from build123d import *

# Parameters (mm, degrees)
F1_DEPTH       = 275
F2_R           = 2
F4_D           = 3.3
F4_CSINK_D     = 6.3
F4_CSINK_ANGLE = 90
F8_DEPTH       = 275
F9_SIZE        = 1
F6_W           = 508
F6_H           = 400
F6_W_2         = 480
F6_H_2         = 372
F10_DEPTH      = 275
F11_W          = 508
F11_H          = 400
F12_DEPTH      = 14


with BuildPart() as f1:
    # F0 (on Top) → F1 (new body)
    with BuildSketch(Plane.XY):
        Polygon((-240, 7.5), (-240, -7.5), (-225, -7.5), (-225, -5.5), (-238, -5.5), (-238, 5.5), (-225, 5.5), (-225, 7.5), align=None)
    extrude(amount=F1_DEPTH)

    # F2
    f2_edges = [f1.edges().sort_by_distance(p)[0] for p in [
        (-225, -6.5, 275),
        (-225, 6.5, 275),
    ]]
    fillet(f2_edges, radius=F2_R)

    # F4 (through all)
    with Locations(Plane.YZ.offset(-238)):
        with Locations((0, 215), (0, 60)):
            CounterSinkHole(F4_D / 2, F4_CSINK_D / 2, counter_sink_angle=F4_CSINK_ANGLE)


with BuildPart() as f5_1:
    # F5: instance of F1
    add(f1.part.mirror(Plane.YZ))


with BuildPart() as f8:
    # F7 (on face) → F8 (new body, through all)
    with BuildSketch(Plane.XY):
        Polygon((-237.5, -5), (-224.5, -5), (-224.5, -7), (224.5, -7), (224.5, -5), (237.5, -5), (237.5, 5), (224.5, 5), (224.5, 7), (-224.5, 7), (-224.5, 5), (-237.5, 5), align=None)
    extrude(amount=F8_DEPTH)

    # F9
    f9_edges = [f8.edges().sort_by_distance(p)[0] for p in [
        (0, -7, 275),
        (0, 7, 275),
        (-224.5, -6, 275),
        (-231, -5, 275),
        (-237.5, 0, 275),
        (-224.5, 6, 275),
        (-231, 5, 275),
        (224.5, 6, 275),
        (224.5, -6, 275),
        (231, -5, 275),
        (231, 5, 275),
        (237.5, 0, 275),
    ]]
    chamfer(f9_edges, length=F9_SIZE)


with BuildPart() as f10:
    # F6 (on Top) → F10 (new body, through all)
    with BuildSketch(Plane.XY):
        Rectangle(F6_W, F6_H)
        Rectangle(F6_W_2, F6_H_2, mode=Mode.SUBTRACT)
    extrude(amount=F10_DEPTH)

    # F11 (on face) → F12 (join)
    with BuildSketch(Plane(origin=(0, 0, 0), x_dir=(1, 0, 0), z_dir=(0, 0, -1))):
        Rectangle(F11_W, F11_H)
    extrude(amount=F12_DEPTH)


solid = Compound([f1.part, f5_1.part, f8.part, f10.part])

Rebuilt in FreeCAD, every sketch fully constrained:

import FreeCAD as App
import Part
import Sketcher

V = App.Vector
Q = App.Units.Quantity


def edges_at(feature, points):
    """Names of the edges that pass closest to the given points."""
    edges = feature.Shape.Edges
    near = lambda p: min(range(len(edges)), key=lambda i: edges[i].distToShape(Part.Vertex(*p))[0])
    return sorted({f"Edge{near(p) + 1}" for p in points})

doc = App.newDocument("Part")
body = doc.addObject("PartDesign::Body", "Body")

sketch1 = doc.addObject("Sketcher::SketchObject", "Sketch")
body.addObject(sketch1)
sketch1.AttachmentSupport = (doc.XY_Plane, [""])
sketch1.MapMode = "FlatFace"
sketch1.addGeometry(Part.LineSegment(V(-240, 7.5, 0), V(-240, -7.5, 0)), False)
sketch1.addGeometry(Part.LineSegment(V(-240, -7.5, 0), V(-225, -7.5, 0)), False)
sketch1.addGeometry(Part.LineSegment(V(-225, -7.5, 0), V(-225, -5.5, 0)), False)
sketch1.addGeometry(Part.LineSegment(V(-225, -5.5, 0), V(-238, -5.5, 0)), False)
sketch1.addGeometry(Part.LineSegment(V(-238, -5.5, 0), V(-238, 5.5, 0)), False)
sketch1.addGeometry(Part.LineSegment(V(-238, 5.5, 0), V(-225, 5.5, 0)), False)
sketch1.addGeometry(Part.LineSegment(V(-225, 5.5, 0), V(-225, 7.5, 0)), False)
sketch1.addGeometry(Part.LineSegment(V(-225, 7.5, 0), V(-240, 7.5, 0)), False)
sketch1.addConstraint(Sketcher.Constraint("Coincident", 0, 2, 1, 1))
sketch1.addConstraint(Sketcher.Constraint("Coincident", 1, 2, 2, 1))
sketch1.addConstraint(Sketcher.Constraint("Coincident", 2, 2, 3, 1))
sketch1.addConstraint(Sketcher.Constraint("Coincident", 3, 2, 4, 1))
sketch1.addConstraint(Sketcher.Constraint("Coincident", 4, 2, 5, 1))
sketch1.addConstraint(Sketcher.Constraint("Coincident", 5, 2, 6, 1))
sketch1.addConstraint(Sketcher.Constraint("Coincident", 6, 2, 7, 1))
sketch1.addConstraint(Sketcher.Constraint("Coincident", 7, 2, 0, 1))
sketch1.addConstraint(Sketcher.Constraint("Vertical", 0))
sketch1.addConstraint(Sketcher.Constraint("Horizontal", 1))
sketch1.addConstraint(Sketcher.Constraint("Vertical", 2))
sketch1.addConstraint(Sketcher.Constraint("Horizontal", 3))
sketch1.addConstraint(Sketcher.Constraint("Vertical", 4))
sketch1.addConstraint(Sketcher.Constraint("Horizontal", 5))
sketch1.addConstraint(Sketcher.Constraint("Vertical", 6))
sketch1.addConstraint(Sketcher.Constraint("Horizontal", 7))
sketch1.addConstraint(Sketcher.Constraint("Symmetric", 2, 2, 5, 2, -1))
sketch1.addConstraint(Sketcher.Constraint("Equal", 7, 0))
sketch1.addConstraint(Sketcher.Constraint("Equal", 2, 6))
sketch1.addConstraint(Sketcher.Constraint("DistanceX", 1, 1, 1, 2, Q("15 mm")))
sketch1.addConstraint(Sketcher.Constraint("DistanceX", 3, 2, 3, 1, Q("13 mm")))
sketch1.addConstraint(Sketcher.Constraint("DistanceY", 2, 1, 2, 2, Q("2 mm")))
sketch1.addConstraint(Sketcher.Constraint("DistanceX", 0, 2, -1, 1, Q("240 mm")))
pad1 = doc.addObject("PartDesign::Pad", "Pad")
body.addObject(pad1)
pad1.Profile = sketch1
pad1.Length = 275
doc.recompute()

fillet = doc.addObject("PartDesign::Fillet", "Fillet")
body.addObject(fillet)
fillet.Base = (pad1, edges_at(pad1, [(-225, -6.5, 275), (-225, 6.5, 275)]))
fillet.Radius = 2

sketch2 = doc.addObject("Sketcher::SketchObject", "Sketch001")
body.addObject(sketch2)
sketch2.AttachmentSupport = (doc.YZ_Plane, [""])
sketch2.MapMode = "FlatFace"
sketch2.AttachmentOffset = App.Placement(V(0, 0, -238), App.Rotation())
sketch2.addGeometry(Part.Circle(V(0, 215, 0), V(0, 0, 1), 1.6), False)
sketch2.addGeometry(Part.Circle(V(0, 60, 0), V(0, 0, 1), 1.6), False)
sketch2.addConstraint(Sketcher.Constraint("Equal", 0, 1))
sketch2.addConstraint(Sketcher.Constraint("PointOnObject", 0, 3, -2))
sketch2.addConstraint(Sketcher.Constraint("PointOnObject", 1, 3, -2))
sketch2.addConstraint(Sketcher.Constraint("Diameter", 0, Q("3.3 mm")))
sketch2.addConstraint(Sketcher.Constraint("DistanceY", -1, 1, 0, 3, Q("215 mm")))
sketch2.addConstraint(Sketcher.Constraint("DistanceY", -1, 1, 1, 3, Q("60 mm")))
doc.recompute()
hole = doc.addObject("PartDesign::Hole", "Hole")
body.addObject(hole)
hole.Profile = sketch2
hole.ThreadType = "None"
hole.Diameter = 3.3
hole.DepthType = "ThroughAll"
hole.HoleCutType = "Countersink"
hole.HoleCutDiameter = 6.3
hole.HoleCutCountersinkAngle = 90
body2 = doc.addObject("PartDesign::Body", "Body001")
doc.recompute()

mirroring = doc.addObject("Part::Mirroring", "Mirroring")
mirroring.Source = body
mirroring.Base = V(0, 0, 0)
mirroring.Normal = V(1, 0, 0)
body2.BaseFeature = mirroring
doc.recompute()
body3 = doc.addObject("PartDesign::Body", "Body002")

sketch3 = doc.addObject("Sketcher::SketchObject", "Sketch002")
body3.addObject(sketch3)
sketch3.AttachmentSupport = (doc.getObject("XY_Plane002"), [""])
sketch3.MapMode = "FlatFace"
sketch3.addGeometry(Part.LineSegment(V(-237.5, -5, 0), V(-224.5, -5, 0)), False)
sketch3.addGeometry(Part.LineSegment(V(-224.5, -5, 0), V(-224.5, -7, 0)), False)
sketch3.addGeometry(Part.LineSegment(V(-224.5, -7, 0), V(224.5, -7, 0)), False)
sketch3.addGeometry(Part.LineSegment(V(224.5, -7, 0), V(224.5, -5, 0)), False)
sketch3.addGeometry(Part.LineSegment(V(224.5, -5, 0), V(237.5, -5, 0)), False)
sketch3.addGeometry(Part.LineSegment(V(237.5, -5, 0), V(237.5, 5, 0)), False)
sketch3.addGeometry(Part.LineSegment(V(237.5, 5, 0), V(224.5, 5, 0)), False)
sketch3.addGeometry(Part.LineSegment(V(224.5, 5, 0), V(224.5, 7, 0)), False)
sketch3.addGeometry(Part.LineSegment(V(224.5, 7, 0), V(-224.5, 7, 0)), False)
sketch3.addGeometry(Part.LineSegment(V(-224.5, 7, 0), V(-224.5, 5, 0)), False)
sketch3.addGeometry(Part.LineSegment(V(-224.5, 5, 0), V(-237.5, 5, 0)), False)
sketch3.addGeometry(Part.LineSegment(V(-237.5, 5, 0), V(-237.5, -5, 0)), False)
sketch3.addConstraint(Sketcher.Constraint("Coincident", 0, 2, 1, 1))
sketch3.addConstraint(Sketcher.Constraint("Coincident", 1, 2, 2, 1))
sketch3.addConstraint(Sketcher.Constraint("Coincident", 2, 2, 3, 1))
sketch3.addConstraint(Sketcher.Constraint("Coincident", 3, 2, 4, 1))
sketch3.addConstraint(Sketcher.Constraint("Coincident", 4, 2, 5, 1))
sketch3.addConstraint(Sketcher.Constraint("Coincident", 5, 2, 6, 1))
sketch3.addConstraint(Sketcher.Constraint("Coincident", 6, 2, 7, 1))
sketch3.addConstraint(Sketcher.Constraint("Coincident", 7, 2, 8, 1))
sketch3.addConstraint(Sketcher.Constraint("Coincident", 8, 2, 9, 1))
sketch3.addConstraint(Sketcher.Constraint("Coincident", 9, 2, 10, 1))
sketch3.addConstraint(Sketcher.Constraint("Coincident", 10, 2, 11, 1))
sketch3.addConstraint(Sketcher.Constraint("Coincident", 11, 2, 0, 1))
sketch3.addConstraint(Sketcher.Constraint("Horizontal", 0))
sketch3.addConstraint(Sketcher.Constraint("Vertical", 1))
sketch3.addConstraint(Sketcher.Constraint("Horizontal", 2))
sketch3.addConstraint(Sketcher.Constraint("Vertical", 3))
sketch3.addConstraint(Sketcher.Constraint("Horizontal", 4))
sketch3.addConstraint(Sketcher.Constraint("Vertical", 5))
sketch3.addConstraint(Sketcher.Constraint("Horizontal", 6))
sketch3.addConstraint(Sketcher.Constraint("Vertical", 7))
sketch3.addConstraint(Sketcher.Constraint("Horizontal", 8))
sketch3.addConstraint(Sketcher.Constraint("Vertical", 9))
sketch3.addConstraint(Sketcher.Constraint("Horizontal", 10))
sketch3.addConstraint(Sketcher.Constraint("Vertical", 11))
sketch3.addConstraint(Sketcher.Constraint("Symmetric", 0, 2, 6, 2, -1, 1))
sketch3.addConstraint(Sketcher.Constraint("Symmetric", 2, 2, 8, 2, -1, 1))
sketch3.addConstraint(Sketcher.Constraint("Symmetric", 4, 2, 10, 2, -1, 1))
sketch3.addConstraint(Sketcher.Constraint("Symmetric", 0, 2, 3, 2, -2))
sketch3.addConstraint(Sketcher.Constraint("DistanceX", 0, 1, 0, 2, Q("13 mm")))
sketch3.addConstraint(Sketcher.Constraint("DistanceX", 2, 1, 2, 2, Q("449 mm")))
sketch3.addConstraint(Sketcher.Constraint("DistanceY", 1, 2, 1, 1, Q("2 mm")))
sketch3.addConstraint(Sketcher.Constraint("DistanceY", 5, 1, 5, 2, Q("10 mm")))
pad2 = doc.addObject("PartDesign::Pad", "Pad001")
body3.addObject(pad2)
pad2.Profile = sketch3
pad2.Length = 275
doc.recompute()

chamfer = doc.addObject("PartDesign::Chamfer", "Chamfer")
body3.addObject(chamfer)
chamfer.Base = (pad2, edges_at(pad2, [
    (0, -7, 275),
    (0, 7, 275),
    (-224.5, -6, 275),
    (-231, -5, 275),
    (-237.5, 0, 275),
    (-224.5, 6, 275),
    (-231, 5, 275),
    (224.5, 6, 275),
    (224.5, -6, 275),
    (231, -5, 275),
    (231, 5, 275),
    (237.5, 0, 275),
]))
chamfer.Size = 1
body4 = doc.addObject("PartDesign::Body", "Body003")

sketch4 = doc.addObject("Sketcher::SketchObject", "Sketch003")
body4.addObject(sketch4)
sketch4.AttachmentSupport = (doc.getObject("XY_Plane003"), [""])
sketch4.MapMode = "FlatFace"
sketch4.addGeometry(Part.LineSegment(V(-254, 200, 0), V(-254, -200, 0)), False)
sketch4.addGeometry(Part.LineSegment(V(-254, -200, 0), V(254, -200, 0)), False)
sketch4.addGeometry(Part.LineSegment(V(254, -200, 0), V(254, 200, 0)), False)
sketch4.addGeometry(Part.LineSegment(V(254, 200, 0), V(-254, 200, 0)), False)
sketch4.addGeometry(Part.LineSegment(V(240, -186, 0), V(-240, -186, 0)), False)
sketch4.addGeometry(Part.LineSegment(V(-240, -186, 0), V(-240, 186, 0)), False)
sketch4.addGeometry(Part.LineSegment(V(-240, 186, 0), V(240, 186, 0)), False)
sketch4.addGeometry(Part.LineSegment(V(240, 186, 0), V(240, -186, 0)), False)
sketch4.addConstraint(Sketcher.Constraint("Coincident", 0, 2, 1, 1))
sketch4.addConstraint(Sketcher.Constraint("Coincident", 1, 2, 2, 1))
sketch4.addConstraint(Sketcher.Constraint("Coincident", 2, 2, 3, 1))
sketch4.addConstraint(Sketcher.Constraint("Coincident", 3, 2, 0, 1))
sketch4.addConstraint(Sketcher.Constraint("Coincident", 4, 2, 5, 1))
sketch4.addConstraint(Sketcher.Constraint("Coincident", 5, 2, 6, 1))
sketch4.addConstraint(Sketcher.Constraint("Coincident", 6, 2, 7, 1))
sketch4.addConstraint(Sketcher.Constraint("Coincident", 7, 2, 4, 1))
sketch4.addConstraint(Sketcher.Constraint("Vertical", 0))
sketch4.addConstraint(Sketcher.Constraint("Horizontal", 1))
sketch4.addConstraint(Sketcher.Constraint("Vertical", 2))
sketch4.addConstraint(Sketcher.Constraint("Horizontal", 3))
sketch4.addConstraint(Sketcher.Constraint("Horizontal", 4))
sketch4.addConstraint(Sketcher.Constraint("Vertical", 5))
sketch4.addConstraint(Sketcher.Constraint("Horizontal", 6))
sketch4.addConstraint(Sketcher.Constraint("Vertical", 7))
sketch4.addConstraint(Sketcher.Constraint("Symmetric", 0, 2, 2, 2, -1, 1))
sketch4.addConstraint(Sketcher.Constraint("Symmetric", 4, 2, 6, 2, -1, 1))
sketch4.addConstraint(Sketcher.Constraint("DistanceX", 1, 1, 1, 2, Q("508 mm")))
sketch4.addConstraint(Sketcher.Constraint("DistanceX", 4, 2, 4, 1, Q("480 mm")))
sketch4.addConstraint(Sketcher.Constraint("DistanceY", 0, 2, 0, 1, Q("400 mm")))
sketch4.addConstraint(Sketcher.Constraint("DistanceY", 5, 1, 5, 2, Q("372 mm")))
pad3 = doc.addObject("PartDesign::Pad", "Pad002")
body4.addObject(pad3)
pad3.Profile = sketch4
pad3.Length = 275

sketch5 = doc.addObject("Sketcher::SketchObject", "Sketch004")
body4.addObject(sketch5)
sketch5.AttachmentSupport = (doc.getObject("XY_Plane003"), [""])
sketch5.MapMode = "FlatFace"
sketch5.addGeometry(Part.LineSegment(V(-254, -200, 0), V(-254, 200, 0)), False)
sketch5.addGeometry(Part.LineSegment(V(-254, 200, 0), V(254, 200, 0)), False)
sketch5.addGeometry(Part.LineSegment(V(254, 200, 0), V(254, -200, 0)), False)
sketch5.addGeometry(Part.LineSegment(V(254, -200, 0), V(-254, -200, 0)), False)
sketch5.addConstraint(Sketcher.Constraint("Coincident", 0, 2, 1, 1))
sketch5.addConstraint(Sketcher.Constraint("Coincident", 1, 2, 2, 1))
sketch5.addConstraint(Sketcher.Constraint("Coincident", 2, 2, 3, 1))
sketch5.addConstraint(Sketcher.Constraint("Coincident", 3, 2, 0, 1))
sketch5.addConstraint(Sketcher.Constraint("Vertical", 0))
sketch5.addConstraint(Sketcher.Constraint("Horizontal", 1))
sketch5.addConstraint(Sketcher.Constraint("Vertical", 2))
sketch5.addConstraint(Sketcher.Constraint("Horizontal", 3))
sketch5.addConstraint(Sketcher.Constraint("Symmetric", 0, 2, 2, 2, -1, 1))
sketch5.addConstraint(Sketcher.Constraint("DistanceX", 1, 1, 1, 2, Q("508 mm")))
sketch5.addConstraint(Sketcher.Constraint("DistanceY", 0, 1, 0, 2, Q("400 mm")))
pad4 = doc.addObject("PartDesign::Pad", "Pad003")
body4.addObject(pad4)
pad4.Profile = sketch5
pad4.Length = 14
pad4.Reversed = True
mirroring.Visibility = False

doc.recompute()
